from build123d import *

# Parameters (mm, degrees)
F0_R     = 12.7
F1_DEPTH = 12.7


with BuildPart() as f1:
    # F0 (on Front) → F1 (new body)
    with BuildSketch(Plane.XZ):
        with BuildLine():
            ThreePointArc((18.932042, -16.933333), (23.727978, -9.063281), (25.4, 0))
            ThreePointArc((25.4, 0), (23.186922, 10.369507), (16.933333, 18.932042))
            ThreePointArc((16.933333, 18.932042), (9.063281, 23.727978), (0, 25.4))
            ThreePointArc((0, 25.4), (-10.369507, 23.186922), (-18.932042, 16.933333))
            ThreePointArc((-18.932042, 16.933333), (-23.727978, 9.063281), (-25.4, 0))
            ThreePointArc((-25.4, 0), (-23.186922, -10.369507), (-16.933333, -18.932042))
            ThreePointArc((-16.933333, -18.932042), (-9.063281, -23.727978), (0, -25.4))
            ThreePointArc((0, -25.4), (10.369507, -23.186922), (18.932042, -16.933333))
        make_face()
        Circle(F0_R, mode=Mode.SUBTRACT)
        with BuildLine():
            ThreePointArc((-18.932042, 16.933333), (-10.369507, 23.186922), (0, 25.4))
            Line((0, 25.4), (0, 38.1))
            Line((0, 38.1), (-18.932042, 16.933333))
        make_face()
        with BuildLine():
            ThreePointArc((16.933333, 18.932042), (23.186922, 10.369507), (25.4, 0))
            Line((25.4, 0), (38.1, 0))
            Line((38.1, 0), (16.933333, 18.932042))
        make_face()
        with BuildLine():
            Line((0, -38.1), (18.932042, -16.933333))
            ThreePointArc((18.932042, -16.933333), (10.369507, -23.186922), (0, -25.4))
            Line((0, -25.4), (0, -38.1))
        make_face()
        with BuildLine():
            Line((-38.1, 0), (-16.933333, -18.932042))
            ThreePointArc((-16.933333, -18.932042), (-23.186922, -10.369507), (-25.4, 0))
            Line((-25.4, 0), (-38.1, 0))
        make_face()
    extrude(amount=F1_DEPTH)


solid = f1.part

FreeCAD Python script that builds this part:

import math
import FreeCAD as App
import Part
import Sketcher
Q = App.Units.Quantity

doc = App.newDocument("Part")
body = doc.addObject("PartDesign::Body", "Body")

# Sketch on XZ plane
sketch1 = body.newObject("Sketcher::SketchObject", "Sketch")
sketch1.AttachmentSupport = (doc.getObject("XZ_Plane"), [""])
sketch1.MapMode = "FlatFace"
sketch1.addGeometry(Part.ArcOfCircle(Part.Circle(App.Vector(0, 0, 0), App.Vector(0, 0, 1), 25), math.radians(-42), math.radians(0)), False)
sketch1.addGeometry(Part.LineSegment(App.Vector(25, 0, 0), App.Vector(38, 0, 0)), False)
sketch1.addGeometry(Part.LineSegment(App.Vector(38, 0, 0), App.Vector(17, 19, 0)), False)
sketch1.addGeometry(Part.ArcOfCircle(Part.Circle(App.Vector(0, 0, 0), App.Vector(0, 0, 1), 25), math.radians(48), math.radians(90)), False)
sketch1.addGeometry(Part.LineSegment(App.Vector(0, 25, 0), App.Vector(0, 38, 0)), False)
sketch1.addGeometry(Part.LineSegment(App.Vector(0, 38, 0), App.Vector(-19, 17, 0)), False)
sketch1.addGeometry(Part.ArcOfCircle(Part.Circle(App.Vector(0, 0, 0), App.Vector(0, 0, 1), 25), math.radians(138), math.radians(180)), False)
sketch1.addGeometry(Part.LineSegment(App.Vector(-25, 0, 0), App.Vector(-38, 0, 0)), False)
sketch1.addGeometry(Part.LineSegment(App.Vector(-38, 0, 0), App.Vector(-17, -19, 0)), False)
sketch1.addGeometry(Part.ArcOfCircle(Part.Circle(App.Vector(0, 0, 0), App.Vector(0, 0, 1), 25), math.radians(-132), math.radians(-90)), False)
sketch1.addGeometry(Part.LineSegment(App.Vector(0, -25, 0), App.Vector(0, -38, 0)), False)
sketch1.addGeometry(Part.LineSegment(App.Vector(0, -38, 0), App.Vector(19, -17, 0)), False)
sketch1.addGeometry(Part.Circle(App.Vector(0, 0, 0), App.Vector(0, 0, 1), 13), False)
sketch1.addConstraint(Sketcher.Constraint("Coincident", 0, 2, 1, 1))
sketch1.addConstraint(Sketcher.Constraint("Coincident", 1, 2, 2, 1))
sketch1.addConstraint(Sketcher.Constraint("Tangent", 2, 2, 3, 1))
sketch1.addConstraint(Sketcher.Constraint("Coincident", 3, 2, 4, 1))
sketch1.addConstraint(Sketcher.Constraint("Coincident", 4, 2, 5, 1))
sketch1.addConstraint(Sketcher.Constraint("Tangent", 5, 2, 6, 1))
sketch1.addConstraint(Sketcher.Constraint("Coincident", 6, 2, 7, 1))
sketch1.addConstraint(Sketcher.Constraint("Coincident", 7, 2, 8, 1))
sketch1.addConstraint(Sketcher.Constraint("Tangent", 8, 2, 9, 1))
sketch1.addConstraint(Sketcher.Constraint("Coincident", 9, 2, 10, 1))
sketch1.addConstraint(Sketcher.Constraint("Coincident", 10, 2, 11, 1))
sketch1.addConstraint(Sketcher.Constraint("Tangent", 11, 2, 0, 1))
sketch1.addConstraint(Sketcher.Constraint("Horizontal", 1))
sketch1.addConstraint(Sketcher.Constraint("Vertical", 4))
sketch1.addConstraint(Sketcher.Constraint("Horizontal", 7))
sketch1.addConstraint(Sketcher.Constraint("Vertical", 10))
sketch1.addConstraint(Sketcher.Constraint("Coincident", 0, 3, -1, 1))
sketch1.addConstraint(Sketcher.Constraint("Coincident", 3, 3, -1, 1))
sketch1.addConstraint(Sketcher.Constraint("Coincident", 6, 3, -1, 1))
sketch1.addConstraint(Sketcher.Constraint("Coincident", 9, 3, -1, 1))
sketch1.addConstraint(Sketcher.Constraint("Coincident", 12, 3, -1, 1))
sketch1.addConstraint(Sketcher.Constraint("Equal", 0, 3))
sketch1.addConstraint(Sketcher.Constraint("Equal", 3, 6))
sketch1.addConstraint(Sketcher.Constraint("Equal", 6, 9))
sketch1.addConstraint(Sketcher.Constraint("Symmetric", 1, 2, 7, 2, -1, 1))
sketch1.addConstraint(Sketcher.Constraint("Symmetric", 4, 2, 10, 2, -1, 1))
sketch1.addConstraint(Sketcher.Constraint("PointOnObject", 0, 2, -1))
sketch1.addConstraint(Sketcher.Constraint("PointOnObject", 3, 2, -2))
sketch1.addConstraint(Sketcher.Constraint("Perpendicular", 2, 5))
sketch1.addConstraint(Sketcher.Constraint("Diameter", 12, Q("1 in")))
sketch1.addConstraint(Sketcher.Constraint("Radius", 0, Q("0.9999999 in")))
sketch1.addConstraint(Sketcher.Constraint("DistanceX", 1, 1, 1, 2, Q("0.5 in")))
pad1 = body.newObject("PartDesign::Pad", "Pad")
pad1.Profile = sketch1
pad1.Length = Q("0.5 in")

doc.recompute()
